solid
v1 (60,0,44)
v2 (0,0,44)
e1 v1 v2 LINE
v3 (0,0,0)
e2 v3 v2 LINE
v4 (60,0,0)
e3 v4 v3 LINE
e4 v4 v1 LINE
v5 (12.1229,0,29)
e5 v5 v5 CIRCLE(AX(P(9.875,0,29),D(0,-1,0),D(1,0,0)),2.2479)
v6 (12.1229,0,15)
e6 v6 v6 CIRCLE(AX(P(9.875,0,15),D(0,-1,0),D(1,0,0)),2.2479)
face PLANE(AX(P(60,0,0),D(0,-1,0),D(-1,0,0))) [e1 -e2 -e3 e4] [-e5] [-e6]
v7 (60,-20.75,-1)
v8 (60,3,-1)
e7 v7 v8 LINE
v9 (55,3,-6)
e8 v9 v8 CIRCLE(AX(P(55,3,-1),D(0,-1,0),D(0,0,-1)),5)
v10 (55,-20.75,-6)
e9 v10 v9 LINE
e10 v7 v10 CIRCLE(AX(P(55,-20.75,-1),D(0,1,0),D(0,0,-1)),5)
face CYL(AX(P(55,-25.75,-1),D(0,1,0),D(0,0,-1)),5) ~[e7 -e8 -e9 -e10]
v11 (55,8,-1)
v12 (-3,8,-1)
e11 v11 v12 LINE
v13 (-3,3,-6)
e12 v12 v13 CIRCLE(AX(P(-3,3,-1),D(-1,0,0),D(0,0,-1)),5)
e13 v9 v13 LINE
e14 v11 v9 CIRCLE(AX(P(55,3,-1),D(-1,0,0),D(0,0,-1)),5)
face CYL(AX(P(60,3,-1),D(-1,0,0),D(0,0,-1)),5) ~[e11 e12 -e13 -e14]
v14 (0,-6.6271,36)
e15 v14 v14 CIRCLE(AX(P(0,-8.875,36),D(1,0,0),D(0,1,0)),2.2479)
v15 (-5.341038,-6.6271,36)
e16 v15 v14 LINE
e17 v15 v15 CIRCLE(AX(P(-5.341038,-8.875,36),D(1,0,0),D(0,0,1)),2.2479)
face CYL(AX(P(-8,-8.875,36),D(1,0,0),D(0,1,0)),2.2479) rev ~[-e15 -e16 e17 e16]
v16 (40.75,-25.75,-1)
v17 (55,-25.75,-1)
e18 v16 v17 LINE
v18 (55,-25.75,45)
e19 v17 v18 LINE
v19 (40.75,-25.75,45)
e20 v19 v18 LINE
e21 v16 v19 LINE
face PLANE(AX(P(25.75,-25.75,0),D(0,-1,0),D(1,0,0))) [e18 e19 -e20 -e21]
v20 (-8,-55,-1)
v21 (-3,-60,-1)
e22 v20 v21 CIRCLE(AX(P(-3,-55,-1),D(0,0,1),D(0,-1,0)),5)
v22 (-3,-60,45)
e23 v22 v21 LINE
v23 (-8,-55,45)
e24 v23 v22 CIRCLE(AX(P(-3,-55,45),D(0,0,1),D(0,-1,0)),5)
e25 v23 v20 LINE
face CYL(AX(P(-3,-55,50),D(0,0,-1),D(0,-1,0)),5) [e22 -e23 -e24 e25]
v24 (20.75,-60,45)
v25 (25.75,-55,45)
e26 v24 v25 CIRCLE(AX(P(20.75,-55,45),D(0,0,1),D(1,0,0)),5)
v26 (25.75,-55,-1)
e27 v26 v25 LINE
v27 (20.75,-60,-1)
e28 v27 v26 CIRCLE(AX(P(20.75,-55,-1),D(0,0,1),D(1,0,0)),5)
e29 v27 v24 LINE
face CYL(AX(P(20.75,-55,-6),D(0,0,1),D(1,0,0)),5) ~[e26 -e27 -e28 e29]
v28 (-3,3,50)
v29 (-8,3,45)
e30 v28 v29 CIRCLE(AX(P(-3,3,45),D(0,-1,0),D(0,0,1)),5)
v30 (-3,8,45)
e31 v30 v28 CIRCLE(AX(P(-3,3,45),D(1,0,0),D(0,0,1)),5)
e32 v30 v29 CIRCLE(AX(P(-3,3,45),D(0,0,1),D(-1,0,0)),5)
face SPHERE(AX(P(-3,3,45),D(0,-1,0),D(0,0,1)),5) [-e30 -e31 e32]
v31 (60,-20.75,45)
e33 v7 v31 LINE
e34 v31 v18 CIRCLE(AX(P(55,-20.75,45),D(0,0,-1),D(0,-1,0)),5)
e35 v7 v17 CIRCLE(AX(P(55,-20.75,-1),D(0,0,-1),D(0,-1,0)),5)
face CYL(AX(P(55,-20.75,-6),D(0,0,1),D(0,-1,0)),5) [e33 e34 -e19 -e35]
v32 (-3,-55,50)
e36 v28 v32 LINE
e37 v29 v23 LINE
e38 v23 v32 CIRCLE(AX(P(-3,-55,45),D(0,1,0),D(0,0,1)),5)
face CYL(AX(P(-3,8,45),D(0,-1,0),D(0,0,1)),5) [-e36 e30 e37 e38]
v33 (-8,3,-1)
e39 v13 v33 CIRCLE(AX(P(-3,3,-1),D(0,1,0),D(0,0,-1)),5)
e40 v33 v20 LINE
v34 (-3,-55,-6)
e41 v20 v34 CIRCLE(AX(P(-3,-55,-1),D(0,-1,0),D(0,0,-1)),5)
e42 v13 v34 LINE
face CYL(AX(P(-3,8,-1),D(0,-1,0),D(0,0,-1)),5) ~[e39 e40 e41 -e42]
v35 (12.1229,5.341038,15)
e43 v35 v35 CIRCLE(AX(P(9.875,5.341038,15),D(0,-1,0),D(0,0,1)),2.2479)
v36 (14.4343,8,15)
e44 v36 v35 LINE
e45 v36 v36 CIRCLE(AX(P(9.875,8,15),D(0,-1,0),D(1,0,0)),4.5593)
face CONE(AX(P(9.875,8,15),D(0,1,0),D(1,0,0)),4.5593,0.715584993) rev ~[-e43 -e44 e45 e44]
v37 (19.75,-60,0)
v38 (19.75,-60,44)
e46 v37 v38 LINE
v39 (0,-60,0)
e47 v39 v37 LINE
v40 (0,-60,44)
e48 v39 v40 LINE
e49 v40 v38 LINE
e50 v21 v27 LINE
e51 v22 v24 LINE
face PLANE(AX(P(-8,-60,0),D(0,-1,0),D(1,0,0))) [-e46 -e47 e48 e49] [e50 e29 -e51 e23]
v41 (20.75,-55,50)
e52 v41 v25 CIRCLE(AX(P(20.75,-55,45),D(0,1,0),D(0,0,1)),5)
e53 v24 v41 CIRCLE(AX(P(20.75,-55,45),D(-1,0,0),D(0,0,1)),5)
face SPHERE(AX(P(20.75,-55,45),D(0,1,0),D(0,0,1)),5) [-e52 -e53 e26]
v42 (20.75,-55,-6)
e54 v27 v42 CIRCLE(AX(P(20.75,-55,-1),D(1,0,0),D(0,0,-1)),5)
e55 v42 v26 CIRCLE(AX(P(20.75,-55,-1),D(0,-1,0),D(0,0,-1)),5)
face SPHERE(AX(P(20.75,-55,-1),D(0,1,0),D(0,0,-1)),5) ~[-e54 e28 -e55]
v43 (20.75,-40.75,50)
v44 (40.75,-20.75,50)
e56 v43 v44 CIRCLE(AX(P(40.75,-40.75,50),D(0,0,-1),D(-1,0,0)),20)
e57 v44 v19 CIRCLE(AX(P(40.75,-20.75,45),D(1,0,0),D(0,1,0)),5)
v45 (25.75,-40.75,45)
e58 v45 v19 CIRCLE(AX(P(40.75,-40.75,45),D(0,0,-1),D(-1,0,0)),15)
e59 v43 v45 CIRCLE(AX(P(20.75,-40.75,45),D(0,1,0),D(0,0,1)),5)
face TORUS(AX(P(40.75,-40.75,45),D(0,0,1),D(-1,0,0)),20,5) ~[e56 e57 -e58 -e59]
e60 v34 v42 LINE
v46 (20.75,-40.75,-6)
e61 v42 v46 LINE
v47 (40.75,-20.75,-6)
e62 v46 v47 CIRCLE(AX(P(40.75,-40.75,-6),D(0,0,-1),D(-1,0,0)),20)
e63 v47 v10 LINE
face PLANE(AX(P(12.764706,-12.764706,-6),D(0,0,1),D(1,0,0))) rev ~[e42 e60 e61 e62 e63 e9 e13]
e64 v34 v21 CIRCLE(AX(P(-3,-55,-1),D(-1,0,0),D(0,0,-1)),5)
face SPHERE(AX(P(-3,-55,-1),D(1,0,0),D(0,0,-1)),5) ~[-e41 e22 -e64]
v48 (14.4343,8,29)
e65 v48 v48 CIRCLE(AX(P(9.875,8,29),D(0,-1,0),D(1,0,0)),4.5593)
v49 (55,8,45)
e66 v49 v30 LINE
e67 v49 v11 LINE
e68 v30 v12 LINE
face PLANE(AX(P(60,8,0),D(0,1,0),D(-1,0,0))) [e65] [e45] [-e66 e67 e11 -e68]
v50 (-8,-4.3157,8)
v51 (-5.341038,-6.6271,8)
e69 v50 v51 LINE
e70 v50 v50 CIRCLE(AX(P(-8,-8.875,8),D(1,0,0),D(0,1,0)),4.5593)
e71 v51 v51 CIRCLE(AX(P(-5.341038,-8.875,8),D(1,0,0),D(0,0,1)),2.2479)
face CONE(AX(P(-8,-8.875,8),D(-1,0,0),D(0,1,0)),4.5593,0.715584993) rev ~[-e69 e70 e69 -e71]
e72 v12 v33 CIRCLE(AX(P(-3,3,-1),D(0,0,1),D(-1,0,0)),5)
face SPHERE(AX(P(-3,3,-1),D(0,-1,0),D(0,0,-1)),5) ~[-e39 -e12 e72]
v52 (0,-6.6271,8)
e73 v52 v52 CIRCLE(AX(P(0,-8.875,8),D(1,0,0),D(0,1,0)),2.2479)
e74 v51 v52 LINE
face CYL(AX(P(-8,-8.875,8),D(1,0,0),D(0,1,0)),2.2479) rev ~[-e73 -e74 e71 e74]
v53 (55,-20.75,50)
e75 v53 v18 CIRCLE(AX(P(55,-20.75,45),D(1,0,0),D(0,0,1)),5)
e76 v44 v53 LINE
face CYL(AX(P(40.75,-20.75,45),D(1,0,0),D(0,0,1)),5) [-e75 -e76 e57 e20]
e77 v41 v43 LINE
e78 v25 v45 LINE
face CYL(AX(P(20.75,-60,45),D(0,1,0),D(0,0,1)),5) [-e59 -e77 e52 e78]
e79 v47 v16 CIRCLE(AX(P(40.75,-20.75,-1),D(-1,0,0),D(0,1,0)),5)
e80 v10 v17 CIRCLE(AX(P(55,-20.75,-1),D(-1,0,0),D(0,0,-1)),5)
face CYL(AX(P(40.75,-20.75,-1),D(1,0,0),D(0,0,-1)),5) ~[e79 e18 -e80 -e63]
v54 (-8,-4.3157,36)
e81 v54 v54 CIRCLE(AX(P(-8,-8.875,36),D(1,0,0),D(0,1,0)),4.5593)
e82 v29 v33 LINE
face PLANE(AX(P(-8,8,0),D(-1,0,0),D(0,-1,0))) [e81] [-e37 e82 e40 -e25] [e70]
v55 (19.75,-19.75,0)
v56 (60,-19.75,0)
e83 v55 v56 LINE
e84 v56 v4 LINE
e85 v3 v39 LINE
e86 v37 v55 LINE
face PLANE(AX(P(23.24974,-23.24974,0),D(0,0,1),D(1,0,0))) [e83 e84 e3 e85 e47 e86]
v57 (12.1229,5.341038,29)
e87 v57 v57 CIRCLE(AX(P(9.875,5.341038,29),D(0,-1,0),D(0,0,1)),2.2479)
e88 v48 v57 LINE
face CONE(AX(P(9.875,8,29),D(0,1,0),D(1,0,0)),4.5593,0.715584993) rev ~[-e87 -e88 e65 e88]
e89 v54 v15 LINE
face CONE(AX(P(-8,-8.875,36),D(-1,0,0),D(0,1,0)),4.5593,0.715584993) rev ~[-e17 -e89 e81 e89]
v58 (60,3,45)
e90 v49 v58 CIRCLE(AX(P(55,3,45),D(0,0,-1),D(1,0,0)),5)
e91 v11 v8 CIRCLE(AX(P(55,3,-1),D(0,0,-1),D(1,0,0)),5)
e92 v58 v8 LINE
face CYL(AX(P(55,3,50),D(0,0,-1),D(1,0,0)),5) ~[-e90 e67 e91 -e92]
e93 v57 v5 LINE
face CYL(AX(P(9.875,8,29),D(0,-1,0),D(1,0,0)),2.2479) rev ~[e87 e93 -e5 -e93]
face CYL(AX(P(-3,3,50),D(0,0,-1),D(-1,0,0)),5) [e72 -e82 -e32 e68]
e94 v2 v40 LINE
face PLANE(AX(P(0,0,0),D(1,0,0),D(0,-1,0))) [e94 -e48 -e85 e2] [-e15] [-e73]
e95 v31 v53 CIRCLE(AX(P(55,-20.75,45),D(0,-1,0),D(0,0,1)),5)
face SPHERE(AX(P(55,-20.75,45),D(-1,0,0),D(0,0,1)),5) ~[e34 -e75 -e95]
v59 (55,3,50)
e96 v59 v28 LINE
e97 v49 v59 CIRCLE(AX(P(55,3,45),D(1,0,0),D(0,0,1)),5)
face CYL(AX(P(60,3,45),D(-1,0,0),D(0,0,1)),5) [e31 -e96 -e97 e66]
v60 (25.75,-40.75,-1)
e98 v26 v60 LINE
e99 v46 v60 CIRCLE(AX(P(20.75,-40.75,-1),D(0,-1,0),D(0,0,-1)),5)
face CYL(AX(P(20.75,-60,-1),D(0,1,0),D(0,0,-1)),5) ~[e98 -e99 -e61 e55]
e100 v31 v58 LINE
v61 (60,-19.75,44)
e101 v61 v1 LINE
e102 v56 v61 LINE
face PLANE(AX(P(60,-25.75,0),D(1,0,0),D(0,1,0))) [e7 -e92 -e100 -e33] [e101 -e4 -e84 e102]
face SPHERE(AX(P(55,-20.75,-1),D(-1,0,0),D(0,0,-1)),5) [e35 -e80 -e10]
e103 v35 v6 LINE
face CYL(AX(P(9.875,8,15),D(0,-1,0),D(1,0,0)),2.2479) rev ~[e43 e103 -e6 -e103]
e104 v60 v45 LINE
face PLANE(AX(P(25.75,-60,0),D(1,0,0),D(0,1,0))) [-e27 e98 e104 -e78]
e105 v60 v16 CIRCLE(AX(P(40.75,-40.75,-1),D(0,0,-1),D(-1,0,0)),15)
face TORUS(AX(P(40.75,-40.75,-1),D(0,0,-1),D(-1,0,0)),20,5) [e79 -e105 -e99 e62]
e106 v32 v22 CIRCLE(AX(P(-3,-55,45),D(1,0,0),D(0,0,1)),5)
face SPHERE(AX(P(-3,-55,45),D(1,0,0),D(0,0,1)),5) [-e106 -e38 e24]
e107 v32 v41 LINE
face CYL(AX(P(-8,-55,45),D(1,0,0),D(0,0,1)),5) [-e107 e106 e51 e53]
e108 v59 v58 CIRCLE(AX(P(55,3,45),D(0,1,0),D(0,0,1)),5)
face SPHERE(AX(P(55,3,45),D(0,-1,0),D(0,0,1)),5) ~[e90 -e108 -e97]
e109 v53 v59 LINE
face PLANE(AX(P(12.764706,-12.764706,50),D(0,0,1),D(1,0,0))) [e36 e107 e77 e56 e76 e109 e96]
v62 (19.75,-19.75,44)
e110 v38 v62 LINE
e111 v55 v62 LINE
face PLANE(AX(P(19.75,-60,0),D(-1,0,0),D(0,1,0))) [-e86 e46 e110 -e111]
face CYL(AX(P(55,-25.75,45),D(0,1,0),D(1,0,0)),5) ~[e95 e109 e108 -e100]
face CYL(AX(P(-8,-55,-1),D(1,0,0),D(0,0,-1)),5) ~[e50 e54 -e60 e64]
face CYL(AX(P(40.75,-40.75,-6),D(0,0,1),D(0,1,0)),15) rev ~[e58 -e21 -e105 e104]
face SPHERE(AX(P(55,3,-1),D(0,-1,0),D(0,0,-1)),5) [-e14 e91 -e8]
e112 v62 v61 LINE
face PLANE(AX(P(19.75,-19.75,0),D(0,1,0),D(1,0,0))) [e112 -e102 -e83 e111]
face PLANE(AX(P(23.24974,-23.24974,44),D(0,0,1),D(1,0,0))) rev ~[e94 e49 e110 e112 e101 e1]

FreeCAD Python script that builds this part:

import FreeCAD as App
import Part
import Sketcher
Q = App.Units.Quantity


def edges_at(feature, points):
    """Names of the edges that pass closest to the given points."""
    edges = feature.Shape.Edges
    near = lambda p: min(range(len(edges)), key=lambda i: edges[i].distToShape(Part.Vertex(*p))[0])
    return sorted({f"Edge{near(p) + 1}" for p in points})


def add_polygon(sketch, points):
    """Adds a closed chain of lines whose ends are joined by coincident constraints."""
    first, n = sketch.GeometryCount, len(points)
    for a, b in zip(points, points[1:] + points[:1]):
        sketch.addGeometry(Part.LineSegment(App.Vector(*a, 0), App.Vector(*b, 0)), False)
    for i in range(n):
        sketch.addConstraint(Sketcher.Constraint("Coincident", first + i, 2, first + (i + 1) % n, 1))

doc = App.newDocument("Part")
params = doc.addObject("Spreadsheet::Sheet", "Params")
for row, (alias, value) in enumerate([
    ("sketch1_width", "68 mm"),
    ("sketch1_width2", "33.75 mm"),
    ("pad1_length", "50 mm"),
    ("pad1_length2", "6 mm"),
    ("sketch2_width", "60 mm"),
    ("sketch2_width2", "19.75 mm"),
    ("pocket1_length", "44 mm"),
    ("hole_diameter", "4.4958 mm"),
    ("hole_csink_diameter", "9.1186 mm"),
    ("hole2_diameter", "4.4958 mm"),
    ("hole2_csink_diameter", "9.1186 mm"),
    ("fillet_radius", "15 mm"),
    ("fillet2_radius", "5 mm"),
], start=1):
    params.set(f"A{row}", alias)
    params.set(f"B{row}", "=" + value)
    params.setAlias(f"B{row}", alias)

body = doc.addObject("PartDesign::Body", "Body")

# Sketch on XY plane
sketch1 = body.newObject("Sketcher::SketchObject", "Sketch")
sketch1.AttachmentSupport = (doc.getObject("XY_Plane"), [""])
sketch1.MapMode = "FlatFace"
add_polygon(sketch1, [(-8, -60), (25.75, -60), (25.75, -25.75), (60, -25.75), (60, 8), (-8, 8)])  # lines 0-5
sketch1.addConstraint([
    Sketcher.Constraint("Horizontal", 0),
    Sketcher.Constraint("Vertical", 1),
    Sketcher.Constraint("Horizontal", 2),
    Sketcher.Constraint("Vertical", 3),
    Sketcher.Constraint("Horizontal", 4),
    Sketcher.Constraint("Vertical", 5),
    Sketcher.Constraint("Equal", 2, 1),
    Sketcher.Constraint("Equal", 0, 3),
    Sketcher.Constraint("DistanceX", 4, 2, 4, 1, Q("68 mm")),
    Sketcher.Constraint("DistanceY", 0, 2, -1, 1, Q("60 mm")),
    Sketcher.Constraint("DistanceX", -1, 1, 2, 2, Q("60 mm")),
    Sketcher.Constraint("DistanceX", 0, 1, 0, 2, Q("33.75 mm")),
])
sketch1.setExpression("Constraints[14]", "Params.sketch1_width")
sketch1.setExpression("Constraints[17]", "Params.sketch1_width2")
pad1 = body.newObject("PartDesign::Pad", "Pad")
pad1.Profile = sketch1
pad1.Type = "TwoLengths"
pad1.setExpression("Length", "Params.pad1_length")
pad1.setExpression("Length2", "Params.pad1_length2")

# Sketch on XY plane
sketch2 = body.newObject("Sketcher::SketchObject", "Sketch001")
sketch2.AttachmentSupport = (doc.getObject("XY_Plane"), [""])
sketch2.MapMode = "FlatFace"
add_polygon(sketch2, [(0, 0), (0, -60), (19.75, -60), (19.75, -19.75), (60, -19.75), (60, 0)])  # lines 0-5
sketch2.addConstraint([
    Sketcher.Constraint("Vertical", 0),
    Sketcher.Constraint("Horizontal", 1),
    Sketcher.Constraint("Vertical", 2),
    Sketcher.Constraint("Horizontal", 3),
    Sketcher.Constraint("Vertical", 4),
    Sketcher.Constraint("Horizontal", 5),
    Sketcher.Constraint("Coincident", 5, 2, -1, 1),
    Sketcher.Constraint("Equal", 5, 0),
    Sketcher.Constraint("Equal", 3, 2),
    Sketcher.Constraint("DistanceX", 5, 2, 5, 1, Q("60 mm")),
    Sketcher.Constraint("DistanceX", 1, 1, 1, 2, Q("19.75 mm")),
])
sketch2.setExpression("Constraints[15]", "Params.sketch2_width")
sketch2.setExpression("Constraints[16]", "Params.sketch2_width2")
pocket1 = body.newObject("PartDesign::Pocket", "Pocket")
pocket1.Profile = sketch2
pocket1.setExpression("Length", "Params.pocket1_length")
pocket1.Reversed = True

# Sketch on YZ plane
sketch3 = body.newObject("Sketcher::SketchObject", "Sketch002")
sketch3.AttachmentSupport = (doc.getObject("YZ_Plane"), [""])
sketch3.MapMode = "FlatFace"
sketch3.AttachmentOffset = App.Placement(App.Vector(0, 0, -8), App.Rotation())
sketch3.addGeometry([
    Part.Circle(App.Vector(-8.875, 36, 0), App.Vector(0, 0, 1), 2.2479),
    Part.Circle(App.Vector(-8.875, 8, 0), App.Vector(0, 0, 1), 2.2479),
], False)
sketch3.addConstraint([
    Sketcher.Constraint("Equal", 0, 1),
    Sketcher.Constraint("Vertical", 0, 3, 1, 3),
    Sketcher.Constraint("DistanceY", -1, 1, 0, 3, Q("36 mm")),
    Sketcher.Constraint("DistanceY", -1, 1, 1, 3, Q("8 mm")),
    Sketcher.Constraint("Diameter", 0, Q("4.4958 mm")),
    Sketcher.Constraint("DistanceX", 0, 3, -1, 1, Q("8.875 mm")),
])
doc.recompute()
hole = body.newObject("PartDesign::Hole", "Hole")
hole.Profile = sketch3
hole.ThreadType = "None"
hole.setExpression("Diameter", "Params.hole_diameter")
hole.DepthType = "ThroughAll"
hole.HoleCutType = "Countersink"
hole.setExpression("HoleCutDiameter", "Params.hole_csink_diameter")
hole.HoleCutCountersinkAngle = 82
hole.Reversed = True

# Sketch on XZ plane
sketch4 = body.newObject("Sketcher::SketchObject", "Sketch003")
sketch4.AttachmentSupport = (doc.getObject("XZ_Plane"), [""])
sketch4.MapMode = "FlatFace"
sketch4.AttachmentOffset = App.Placement(App.Vector(0, 0, -8), App.Rotation())
sketch4.addGeometry([
    Part.Circle(App.Vector(9.875, 29, 0), App.Vector(0, 0, 1), 2.2479),
    Part.Circle(App.Vector(9.875, 15, 0), App.Vector(0, 0, 1), 2.2479),
], False)
sketch4.addConstraint([
    Sketcher.Constraint("Equal", 0, 1),
    Sketcher.Constraint("Vertical", 0, 3, 1, 3),
    Sketcher.Constraint("DistanceY", -1, 1, 0, 3, Q("29 mm")),
    Sketcher.Constraint("DistanceY", -1, 1, 1, 3, Q("15 mm")),
    Sketcher.Constraint("Diameter", 0, Q("4.4958 mm")),
    Sketcher.Constraint("DistanceX", -1, 1, 0, 3, Q("9.875 mm")),
])
doc.recompute()
hole2 = body.newObject("PartDesign::Hole", "Hole001")
hole2.Profile = sketch4
hole2.ThreadType = "None"
hole2.setExpression("Diameter", "Params.hole2_diameter")
hole2.DepthType = "ThroughAll"
hole2.HoleCutType = "Countersink"
hole2.setExpression("HoleCutDiameter", "Params.hole2_csink_diameter")
hole2.HoleCutCountersinkAngle = 82
hole2.Reversed = True
doc.recompute()

fillet = body.newObject("PartDesign::Fillet", "Fillet")
fillet.Base = (hole2, edges_at(hole2, [(25.75, -25.75, 22)]))
fillet.setExpression("Radius", "Params.fillet_radius")
doc.recompute()

fillet2 = body.newObject("PartDesign::Fillet", "Fillet001")
fillet2.Base = (fillet, edges_at(fillet, [
    (25.75, -50.375, 50),
    (30.143, -30.143, 50),
    (8.875, -60, 50),
    (50.375, -25.75, 50),
    (-8, -26, 50),
    (60, -8.875, 50),
    (26, 8, 50),
    (25.75, -50.375, -6),
    (30.143, -30.143, -6),
    (8.875, -60, -6),
    (50.375, -25.75, -6),
    (-8, -26, -6),
    (60, -8.875, -6),
    (26, 8, -6),
    (60, -25.75, 22),
    (60, 8, 22),
    (25.75, -60, 22),
    (-8, -60, 22),
    (-8, 8, 22),
]))
fillet2.setExpression("Radius", "Params.fillet2_radius")

doc.recompute()
